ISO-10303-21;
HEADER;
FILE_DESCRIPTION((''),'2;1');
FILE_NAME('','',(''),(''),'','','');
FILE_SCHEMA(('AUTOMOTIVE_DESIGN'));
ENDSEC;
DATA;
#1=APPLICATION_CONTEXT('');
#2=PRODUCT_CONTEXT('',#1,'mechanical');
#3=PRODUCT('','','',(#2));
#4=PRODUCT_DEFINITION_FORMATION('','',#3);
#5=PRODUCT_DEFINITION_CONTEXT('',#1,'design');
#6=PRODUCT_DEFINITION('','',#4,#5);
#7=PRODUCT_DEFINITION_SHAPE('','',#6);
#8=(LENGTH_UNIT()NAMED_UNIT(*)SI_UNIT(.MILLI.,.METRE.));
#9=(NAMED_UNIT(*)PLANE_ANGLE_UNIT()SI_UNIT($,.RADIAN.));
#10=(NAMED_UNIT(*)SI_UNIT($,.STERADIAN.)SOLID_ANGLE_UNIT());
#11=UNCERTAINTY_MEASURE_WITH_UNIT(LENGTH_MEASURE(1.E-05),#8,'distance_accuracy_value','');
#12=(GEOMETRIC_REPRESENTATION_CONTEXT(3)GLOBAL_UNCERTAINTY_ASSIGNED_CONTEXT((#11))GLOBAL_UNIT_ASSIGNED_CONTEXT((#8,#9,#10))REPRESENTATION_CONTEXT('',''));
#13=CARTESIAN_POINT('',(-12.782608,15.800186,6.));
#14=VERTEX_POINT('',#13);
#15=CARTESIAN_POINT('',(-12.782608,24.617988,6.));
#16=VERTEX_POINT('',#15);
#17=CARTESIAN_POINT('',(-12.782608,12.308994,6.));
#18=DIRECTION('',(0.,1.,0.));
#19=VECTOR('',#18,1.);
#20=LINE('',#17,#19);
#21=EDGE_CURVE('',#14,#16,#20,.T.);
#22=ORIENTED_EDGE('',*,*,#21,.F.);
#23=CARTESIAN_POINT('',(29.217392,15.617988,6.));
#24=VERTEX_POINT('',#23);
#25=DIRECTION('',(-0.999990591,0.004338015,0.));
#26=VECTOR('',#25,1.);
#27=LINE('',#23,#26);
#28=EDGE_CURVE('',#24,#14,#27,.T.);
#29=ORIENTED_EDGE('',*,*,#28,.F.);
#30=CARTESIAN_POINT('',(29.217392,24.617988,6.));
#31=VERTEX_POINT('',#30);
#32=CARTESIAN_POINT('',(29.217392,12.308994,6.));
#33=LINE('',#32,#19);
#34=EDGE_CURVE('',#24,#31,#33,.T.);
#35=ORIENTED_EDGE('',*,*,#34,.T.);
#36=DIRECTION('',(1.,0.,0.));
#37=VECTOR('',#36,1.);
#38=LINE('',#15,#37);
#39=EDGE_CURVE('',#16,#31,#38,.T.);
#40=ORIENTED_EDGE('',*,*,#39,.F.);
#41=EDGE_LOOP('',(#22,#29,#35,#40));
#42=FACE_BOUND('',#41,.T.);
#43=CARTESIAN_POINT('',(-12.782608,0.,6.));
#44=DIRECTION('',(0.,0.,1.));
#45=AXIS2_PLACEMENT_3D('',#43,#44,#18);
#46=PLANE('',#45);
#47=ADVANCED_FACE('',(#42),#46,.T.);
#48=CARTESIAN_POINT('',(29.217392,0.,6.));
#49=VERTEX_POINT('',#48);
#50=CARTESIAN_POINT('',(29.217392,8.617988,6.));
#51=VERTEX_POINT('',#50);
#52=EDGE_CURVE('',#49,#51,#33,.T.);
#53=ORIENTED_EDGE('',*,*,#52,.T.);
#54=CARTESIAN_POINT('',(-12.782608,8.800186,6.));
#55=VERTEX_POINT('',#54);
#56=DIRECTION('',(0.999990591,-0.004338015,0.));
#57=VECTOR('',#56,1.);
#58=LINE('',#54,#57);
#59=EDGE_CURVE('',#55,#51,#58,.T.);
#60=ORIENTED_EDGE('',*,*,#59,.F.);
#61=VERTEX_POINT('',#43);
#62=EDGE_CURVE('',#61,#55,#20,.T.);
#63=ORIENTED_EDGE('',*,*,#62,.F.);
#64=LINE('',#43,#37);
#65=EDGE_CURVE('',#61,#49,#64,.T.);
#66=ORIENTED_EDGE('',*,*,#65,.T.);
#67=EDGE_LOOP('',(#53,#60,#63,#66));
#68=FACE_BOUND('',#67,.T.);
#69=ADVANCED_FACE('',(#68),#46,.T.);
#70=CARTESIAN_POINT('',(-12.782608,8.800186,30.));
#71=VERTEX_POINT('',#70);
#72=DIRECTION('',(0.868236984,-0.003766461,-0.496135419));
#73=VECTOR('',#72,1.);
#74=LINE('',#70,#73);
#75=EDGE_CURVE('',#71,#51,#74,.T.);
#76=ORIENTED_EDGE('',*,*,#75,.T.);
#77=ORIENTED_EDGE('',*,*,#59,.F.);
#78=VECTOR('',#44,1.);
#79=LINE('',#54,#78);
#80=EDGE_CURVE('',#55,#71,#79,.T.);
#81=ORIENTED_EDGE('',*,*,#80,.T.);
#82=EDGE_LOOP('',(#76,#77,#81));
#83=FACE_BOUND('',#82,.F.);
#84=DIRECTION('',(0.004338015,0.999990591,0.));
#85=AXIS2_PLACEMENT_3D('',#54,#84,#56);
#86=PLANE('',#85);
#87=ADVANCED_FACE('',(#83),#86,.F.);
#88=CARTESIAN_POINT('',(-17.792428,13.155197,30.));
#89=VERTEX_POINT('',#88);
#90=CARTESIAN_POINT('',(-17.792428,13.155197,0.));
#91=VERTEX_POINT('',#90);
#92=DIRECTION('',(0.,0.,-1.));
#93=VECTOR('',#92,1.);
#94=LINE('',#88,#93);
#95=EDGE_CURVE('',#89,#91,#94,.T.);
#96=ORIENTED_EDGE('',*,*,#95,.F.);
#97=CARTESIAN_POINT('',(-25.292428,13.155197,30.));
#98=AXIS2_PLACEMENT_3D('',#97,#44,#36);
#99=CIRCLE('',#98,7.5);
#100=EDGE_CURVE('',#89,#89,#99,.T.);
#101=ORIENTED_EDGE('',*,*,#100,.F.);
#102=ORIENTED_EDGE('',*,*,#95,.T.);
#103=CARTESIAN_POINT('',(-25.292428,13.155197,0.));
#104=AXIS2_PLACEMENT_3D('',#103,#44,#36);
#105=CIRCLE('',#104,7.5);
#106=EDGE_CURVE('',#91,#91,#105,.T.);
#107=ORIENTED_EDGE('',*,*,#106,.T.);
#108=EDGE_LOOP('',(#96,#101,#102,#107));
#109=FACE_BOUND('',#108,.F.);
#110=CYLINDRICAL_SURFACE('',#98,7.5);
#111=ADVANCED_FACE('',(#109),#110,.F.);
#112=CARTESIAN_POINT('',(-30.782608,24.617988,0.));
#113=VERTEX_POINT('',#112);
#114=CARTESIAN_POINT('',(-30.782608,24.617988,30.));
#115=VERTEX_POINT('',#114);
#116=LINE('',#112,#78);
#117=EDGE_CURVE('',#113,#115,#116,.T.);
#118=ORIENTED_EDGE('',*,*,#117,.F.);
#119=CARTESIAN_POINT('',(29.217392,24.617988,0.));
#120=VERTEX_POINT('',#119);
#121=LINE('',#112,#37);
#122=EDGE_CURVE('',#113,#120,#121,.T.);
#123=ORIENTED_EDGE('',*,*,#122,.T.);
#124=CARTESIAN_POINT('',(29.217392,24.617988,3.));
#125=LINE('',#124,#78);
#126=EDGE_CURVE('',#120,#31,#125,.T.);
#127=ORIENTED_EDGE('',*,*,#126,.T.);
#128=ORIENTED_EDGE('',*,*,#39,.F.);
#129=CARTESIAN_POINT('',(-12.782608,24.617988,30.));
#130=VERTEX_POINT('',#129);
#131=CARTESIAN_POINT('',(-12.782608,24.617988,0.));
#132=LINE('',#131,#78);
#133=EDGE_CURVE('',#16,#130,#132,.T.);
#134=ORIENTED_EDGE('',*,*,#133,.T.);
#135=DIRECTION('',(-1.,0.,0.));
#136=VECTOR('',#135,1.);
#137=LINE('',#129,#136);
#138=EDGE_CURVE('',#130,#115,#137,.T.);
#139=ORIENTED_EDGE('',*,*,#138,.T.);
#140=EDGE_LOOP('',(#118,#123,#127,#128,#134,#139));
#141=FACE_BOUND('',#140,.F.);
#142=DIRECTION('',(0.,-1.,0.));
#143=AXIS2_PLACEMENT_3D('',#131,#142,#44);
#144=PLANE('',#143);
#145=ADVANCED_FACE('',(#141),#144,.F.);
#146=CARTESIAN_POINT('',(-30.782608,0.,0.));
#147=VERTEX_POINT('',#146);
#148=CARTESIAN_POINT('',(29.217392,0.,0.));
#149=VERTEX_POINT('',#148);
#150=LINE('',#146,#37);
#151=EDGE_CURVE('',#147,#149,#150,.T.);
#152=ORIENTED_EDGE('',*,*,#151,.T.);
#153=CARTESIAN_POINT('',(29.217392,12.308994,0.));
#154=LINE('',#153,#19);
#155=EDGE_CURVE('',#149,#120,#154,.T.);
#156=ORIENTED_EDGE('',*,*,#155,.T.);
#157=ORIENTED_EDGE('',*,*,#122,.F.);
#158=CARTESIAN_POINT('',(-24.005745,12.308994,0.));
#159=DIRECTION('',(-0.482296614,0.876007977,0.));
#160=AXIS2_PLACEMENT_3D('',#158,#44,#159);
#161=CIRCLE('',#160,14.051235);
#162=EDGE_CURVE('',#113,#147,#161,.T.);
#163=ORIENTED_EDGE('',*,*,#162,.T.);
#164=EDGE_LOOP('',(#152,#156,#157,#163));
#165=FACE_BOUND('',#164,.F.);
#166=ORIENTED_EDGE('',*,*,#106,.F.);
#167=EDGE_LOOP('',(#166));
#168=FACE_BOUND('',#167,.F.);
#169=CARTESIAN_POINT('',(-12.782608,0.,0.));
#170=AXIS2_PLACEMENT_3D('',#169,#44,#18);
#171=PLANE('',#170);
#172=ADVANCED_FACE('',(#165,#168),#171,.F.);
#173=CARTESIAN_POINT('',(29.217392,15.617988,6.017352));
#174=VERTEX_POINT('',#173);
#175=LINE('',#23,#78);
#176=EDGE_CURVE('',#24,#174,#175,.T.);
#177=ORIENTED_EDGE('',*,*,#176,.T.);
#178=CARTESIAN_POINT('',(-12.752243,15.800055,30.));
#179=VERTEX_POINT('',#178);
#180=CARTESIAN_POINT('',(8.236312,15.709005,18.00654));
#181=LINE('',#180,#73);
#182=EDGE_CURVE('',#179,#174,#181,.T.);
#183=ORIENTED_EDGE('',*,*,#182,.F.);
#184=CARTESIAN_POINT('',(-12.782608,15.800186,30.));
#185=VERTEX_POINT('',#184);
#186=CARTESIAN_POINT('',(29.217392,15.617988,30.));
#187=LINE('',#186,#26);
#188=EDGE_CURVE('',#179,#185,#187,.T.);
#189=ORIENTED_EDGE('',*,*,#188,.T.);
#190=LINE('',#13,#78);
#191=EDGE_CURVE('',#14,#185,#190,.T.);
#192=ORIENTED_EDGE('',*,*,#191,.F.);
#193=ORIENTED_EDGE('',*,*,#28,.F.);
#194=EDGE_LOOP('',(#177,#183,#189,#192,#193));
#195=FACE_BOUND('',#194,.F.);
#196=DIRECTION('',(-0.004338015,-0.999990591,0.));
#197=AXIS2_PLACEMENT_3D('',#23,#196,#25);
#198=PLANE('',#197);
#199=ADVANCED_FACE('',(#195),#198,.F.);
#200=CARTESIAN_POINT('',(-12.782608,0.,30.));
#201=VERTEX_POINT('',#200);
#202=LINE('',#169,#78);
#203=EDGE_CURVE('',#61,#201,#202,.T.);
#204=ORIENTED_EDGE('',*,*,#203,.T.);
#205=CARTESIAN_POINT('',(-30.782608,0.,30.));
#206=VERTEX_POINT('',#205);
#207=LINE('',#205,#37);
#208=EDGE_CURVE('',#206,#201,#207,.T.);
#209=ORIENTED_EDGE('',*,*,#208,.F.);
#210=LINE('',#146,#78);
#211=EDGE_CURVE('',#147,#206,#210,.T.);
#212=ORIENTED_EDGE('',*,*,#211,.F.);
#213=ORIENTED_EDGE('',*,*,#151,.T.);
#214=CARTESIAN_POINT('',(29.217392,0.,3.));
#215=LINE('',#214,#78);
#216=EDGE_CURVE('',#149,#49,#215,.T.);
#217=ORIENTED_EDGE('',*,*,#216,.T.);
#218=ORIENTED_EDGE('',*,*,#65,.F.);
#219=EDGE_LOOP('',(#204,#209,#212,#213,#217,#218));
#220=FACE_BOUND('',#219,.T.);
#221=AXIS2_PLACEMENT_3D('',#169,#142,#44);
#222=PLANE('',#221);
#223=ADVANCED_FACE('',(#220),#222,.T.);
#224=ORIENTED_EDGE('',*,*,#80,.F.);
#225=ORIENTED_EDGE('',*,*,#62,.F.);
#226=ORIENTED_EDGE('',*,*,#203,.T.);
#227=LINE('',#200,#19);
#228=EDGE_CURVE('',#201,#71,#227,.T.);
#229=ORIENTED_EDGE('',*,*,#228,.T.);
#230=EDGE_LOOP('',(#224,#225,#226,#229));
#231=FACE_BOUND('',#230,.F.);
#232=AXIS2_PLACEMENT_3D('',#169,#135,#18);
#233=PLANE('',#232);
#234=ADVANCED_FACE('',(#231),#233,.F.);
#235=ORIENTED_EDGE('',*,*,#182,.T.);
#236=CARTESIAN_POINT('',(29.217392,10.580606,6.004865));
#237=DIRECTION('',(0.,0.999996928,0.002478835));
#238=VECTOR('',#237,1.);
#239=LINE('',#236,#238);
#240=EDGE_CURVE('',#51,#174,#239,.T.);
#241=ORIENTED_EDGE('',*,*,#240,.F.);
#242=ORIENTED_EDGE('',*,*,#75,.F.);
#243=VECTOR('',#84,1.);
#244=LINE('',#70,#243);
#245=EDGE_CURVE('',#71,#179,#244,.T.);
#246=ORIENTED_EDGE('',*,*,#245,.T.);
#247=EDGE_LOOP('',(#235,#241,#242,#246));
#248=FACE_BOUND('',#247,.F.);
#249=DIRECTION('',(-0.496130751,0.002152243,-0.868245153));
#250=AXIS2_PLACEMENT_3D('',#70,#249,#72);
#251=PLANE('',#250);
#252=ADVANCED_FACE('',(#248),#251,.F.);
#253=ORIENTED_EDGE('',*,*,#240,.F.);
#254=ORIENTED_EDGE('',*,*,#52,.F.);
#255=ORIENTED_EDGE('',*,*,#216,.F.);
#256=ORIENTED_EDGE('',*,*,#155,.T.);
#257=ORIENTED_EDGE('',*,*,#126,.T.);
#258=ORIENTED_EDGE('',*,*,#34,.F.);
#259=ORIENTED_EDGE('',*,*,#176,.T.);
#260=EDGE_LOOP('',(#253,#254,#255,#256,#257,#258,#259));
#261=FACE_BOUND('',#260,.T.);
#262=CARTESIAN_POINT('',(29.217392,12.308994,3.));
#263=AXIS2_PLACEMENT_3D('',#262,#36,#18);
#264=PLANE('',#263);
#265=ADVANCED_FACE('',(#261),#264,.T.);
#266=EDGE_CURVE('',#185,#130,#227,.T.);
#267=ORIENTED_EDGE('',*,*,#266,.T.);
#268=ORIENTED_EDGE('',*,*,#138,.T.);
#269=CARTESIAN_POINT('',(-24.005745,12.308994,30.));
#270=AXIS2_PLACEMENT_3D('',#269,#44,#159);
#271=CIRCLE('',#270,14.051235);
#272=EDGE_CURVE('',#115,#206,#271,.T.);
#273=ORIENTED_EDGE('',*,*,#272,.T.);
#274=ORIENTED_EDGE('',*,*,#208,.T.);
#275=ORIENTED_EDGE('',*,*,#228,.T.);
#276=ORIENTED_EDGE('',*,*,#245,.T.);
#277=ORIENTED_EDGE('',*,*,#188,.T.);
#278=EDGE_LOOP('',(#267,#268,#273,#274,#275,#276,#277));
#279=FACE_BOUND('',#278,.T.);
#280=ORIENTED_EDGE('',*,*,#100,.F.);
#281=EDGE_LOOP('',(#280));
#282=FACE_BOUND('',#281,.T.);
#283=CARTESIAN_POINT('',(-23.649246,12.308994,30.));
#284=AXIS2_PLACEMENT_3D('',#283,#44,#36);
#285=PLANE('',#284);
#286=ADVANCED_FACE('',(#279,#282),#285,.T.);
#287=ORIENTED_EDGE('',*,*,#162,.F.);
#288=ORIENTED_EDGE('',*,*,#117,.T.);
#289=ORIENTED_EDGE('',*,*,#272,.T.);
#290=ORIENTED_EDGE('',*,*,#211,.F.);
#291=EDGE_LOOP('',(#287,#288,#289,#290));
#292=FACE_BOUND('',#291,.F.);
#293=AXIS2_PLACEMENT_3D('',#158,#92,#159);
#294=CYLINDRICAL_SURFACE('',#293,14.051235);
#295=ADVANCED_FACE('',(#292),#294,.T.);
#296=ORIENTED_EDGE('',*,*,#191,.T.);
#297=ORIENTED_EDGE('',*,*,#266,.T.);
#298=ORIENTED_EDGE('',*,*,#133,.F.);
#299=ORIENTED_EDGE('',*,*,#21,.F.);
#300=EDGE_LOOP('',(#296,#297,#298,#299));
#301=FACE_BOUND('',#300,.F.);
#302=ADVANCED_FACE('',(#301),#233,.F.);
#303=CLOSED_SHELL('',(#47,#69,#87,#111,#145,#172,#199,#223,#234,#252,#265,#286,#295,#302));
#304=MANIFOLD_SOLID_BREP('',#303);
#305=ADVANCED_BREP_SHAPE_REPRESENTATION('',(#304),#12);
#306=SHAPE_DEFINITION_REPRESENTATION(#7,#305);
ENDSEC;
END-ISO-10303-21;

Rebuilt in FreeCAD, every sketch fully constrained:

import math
import FreeCAD as App
import Part
import Sketcher
from FreeCAD import Vector


def add_polygon(sketch, points):
    """Adds a closed chain of lines whose ends are joined by coincident constraints."""
    first, n = sketch.GeometryCount, len(points)
    for a, b in zip(points, points[1:] + points[:1]):
        sketch.addGeometry(Part.LineSegment(App.Vector(*a, 0), App.Vector(*b, 0)), False)
    for i in range(n):
        sketch.addConstraint(Sketcher.Constraint("Coincident", first + i, 2, first + (i + 1) % n, 1))

doc = App.newDocument("Part")
body = doc.addObject("PartDesign::Body", "Body")

sketch1 = doc.addObject("Sketcher::SketchObject", "Sketch")
body.addObject(sketch1)
sketch1.AttachmentSupport = (doc.XY_Plane, [""])
sketch1.MapMode = "FlatFace"
sketch1.addGeometry([
    Part.LineSegment(Vector(-13, 25, 0), Vector(-31, 25, 0)),
    Part.ArcOfCircle(Part.Circle(Vector(-24, 12, 0), Vector(0, 0, 1), 14), math.radians(119), math.radians(241)),
    Part.LineSegment(Vector(-31, 0, 0), Vector(-13, 0, 0)),
    Part.LineSegment(Vector(-13, 0, 0), Vector(-13, 25, 0)),
], False)
sketch1.addConstraint([
    Sketcher.Constraint("Coincident", 0, 2, 1, 1),
    Sketcher.Constraint("Coincident", 1, 2, 2, 1),
    Sketcher.Constraint("Coincident", 2, 2, 3, 1),
    Sketcher.Constraint("Coincident", 3, 2, 0, 1),
    Sketcher.Constraint("Horizontal", 0),
    Sketcher.Constraint("Horizontal", 2),
    Sketcher.Constraint("Vertical", 3),
    Sketcher.Constraint("PointOnObject", 1, 2, -1),
    Sketcher.Constraint("Vertical", 0, 2, 1, 2),
    Sketcher.Constraint("DistanceX", 0, 2, 0, 1, 18.0),
    Sketcher.Constraint("Radius", 1, 14.051235),
    Sketcher.Constraint("DistanceY", 3, 1, 3, 2, 24.617988),
    Sketcher.Constraint("DistanceX", 0, 2, -1, 1, 30.782608),
])
pad1 = doc.addObject("PartDesign::Pad", "Pad")
body.addObject(pad1)
pad1.Profile = sketch1
pad1.Length = 30

sketch2 = doc.addObject("Sketcher::SketchObject", "Sketch001")
body.addObject(sketch2)
sketch2.AttachmentSupport = (doc.YZ_Plane, [""])
sketch2.MapMode = "FlatFace"
sketch2.AttachmentOffset = App.Placement(Vector(0, 0, -12.782608), App.Rotation())
add_polygon(sketch2, [(0, 6), (0, 0), (25, 0), (25, 6)])
sketch2.addConstraint([
    Sketcher.Constraint("Vertical", 0),
    Sketcher.Constraint("Horizontal", 1),
    Sketcher.Constraint("Vertical", 2),
    Sketcher.Constraint("Horizontal", 3),
    Sketcher.Constraint("Coincident", 0, 2, -1, 1),
    Sketcher.Constraint("DistanceY", 0, 2, 0, 1, 6.0),
    Sketcher.Constraint("DistanceX", 1, 1, 1, 2, 24.617988),
])
pad2 = doc.addObject("PartDesign::Pad", "Pad001")
body.addObject(pad2)
pad2.Profile = sketch2
pad2.Length = 42

sketch3 = doc.addObject("Sketcher::SketchObject", "Sketch002")
body.addObject(sketch3)
sketch3.AttachmentSupport = (doc.XY_Plane, [""])
sketch3.MapMode = "FlatFace"
sketch3.AttachmentOffset = App.Placement(Vector(0, 0, 6), App.Rotation())
add_polygon(sketch3, [(29, 16), (-13, 16), (-13, 9), (29, 9)])
sketch3.addConstraint([
    Sketcher.Constraint("Vertical", 1),
    Sketcher.Constraint("Vertical", 3),
    Sketcher.Constraint("Parallel", 0, 2),
    Sketcher.Constraint("DistanceY", 1, 2, 1, 1, 7.0),
    Sketcher.Constraint("DistanceX", 1, 2, 2, 2, 42.0),
    Sketcher.Constraint("DistanceY", 2, 2, 1, 2, 0.182198),
    Sketcher.Constraint("DistanceX", 0, 2, -1, 1, 12.782608),
    Sketcher.Constraint("DistanceY", -1, 1, 0, 2, 15.800186),
])
pad3 = doc.addObject("PartDesign::Pad", "Pad002")
body.addObject(pad3)
pad3.Profile = sketch3
pad3.Length = 24

sketch4 = doc.addObject("Sketcher::SketchObject", "Sketch003")
body.addObject(sketch4)
sketch4.Placement = App.Placement(Vector(0.037934, 8.74457, 0), App.Rotation(Vector(0.999990591, -0.004338015, 0), Vector(0, 0, 1), Vector(-0.004338015, -0.999990591, 0), "ZXY"))
add_polygon(sketch4, [(29, 30), (-13, 30), (29, 6)])
sketch4.addConstraint([
    Sketcher.Constraint("Horizontal", 0),
    Sketcher.Constraint("Vertical", 2),
    Sketcher.Constraint("DistanceY", 2, 1, 2, 2, 24.0),
    Sketcher.Constraint("DistanceY", -1, 1, 0, 2, 30.0),
    Sketcher.Constraint("Distance", 1, 48.37389),
    Sketcher.Constraint("DistanceX", -1, 1, 1, 2, 29.179732),
])
pocket1 = doc.addObject("PartDesign::Pocket", "Pocket")
body.addObject(pocket1)
pocket1.Profile = sketch4
pocket1.Length = 100

sketch5 = doc.addObject("Sketcher::SketchObject", "Sketch004")
body.addObject(sketch5)
sketch5.AttachmentSupport = (doc.XY_Plane, [""])
sketch5.MapMode = "FlatFace"
sketch5.AttachmentOffset = App.Placement(Vector(0, 0, 30), App.Rotation())
sketch5.addGeometry(Part.Circle(Vector(-25, 13, 0), Vector(0, 0, 1), 8), False)
sketch5.addConstraint([
    Sketcher.Constraint("Diameter", 0, 15.0),
    Sketcher.Constraint("DistanceX", 0, 3, -1, 1, 25.292428),
    Sketcher.Constraint("DistanceY", -1, 1, 0, 3, 13.155197),
])
pocket2 = doc.addObject("PartDesign::Pocket", "Pocket001")
body.addObject(pocket2)
pocket2.Profile = sketch5
pocket2.Length = 100

doc.recompute()
